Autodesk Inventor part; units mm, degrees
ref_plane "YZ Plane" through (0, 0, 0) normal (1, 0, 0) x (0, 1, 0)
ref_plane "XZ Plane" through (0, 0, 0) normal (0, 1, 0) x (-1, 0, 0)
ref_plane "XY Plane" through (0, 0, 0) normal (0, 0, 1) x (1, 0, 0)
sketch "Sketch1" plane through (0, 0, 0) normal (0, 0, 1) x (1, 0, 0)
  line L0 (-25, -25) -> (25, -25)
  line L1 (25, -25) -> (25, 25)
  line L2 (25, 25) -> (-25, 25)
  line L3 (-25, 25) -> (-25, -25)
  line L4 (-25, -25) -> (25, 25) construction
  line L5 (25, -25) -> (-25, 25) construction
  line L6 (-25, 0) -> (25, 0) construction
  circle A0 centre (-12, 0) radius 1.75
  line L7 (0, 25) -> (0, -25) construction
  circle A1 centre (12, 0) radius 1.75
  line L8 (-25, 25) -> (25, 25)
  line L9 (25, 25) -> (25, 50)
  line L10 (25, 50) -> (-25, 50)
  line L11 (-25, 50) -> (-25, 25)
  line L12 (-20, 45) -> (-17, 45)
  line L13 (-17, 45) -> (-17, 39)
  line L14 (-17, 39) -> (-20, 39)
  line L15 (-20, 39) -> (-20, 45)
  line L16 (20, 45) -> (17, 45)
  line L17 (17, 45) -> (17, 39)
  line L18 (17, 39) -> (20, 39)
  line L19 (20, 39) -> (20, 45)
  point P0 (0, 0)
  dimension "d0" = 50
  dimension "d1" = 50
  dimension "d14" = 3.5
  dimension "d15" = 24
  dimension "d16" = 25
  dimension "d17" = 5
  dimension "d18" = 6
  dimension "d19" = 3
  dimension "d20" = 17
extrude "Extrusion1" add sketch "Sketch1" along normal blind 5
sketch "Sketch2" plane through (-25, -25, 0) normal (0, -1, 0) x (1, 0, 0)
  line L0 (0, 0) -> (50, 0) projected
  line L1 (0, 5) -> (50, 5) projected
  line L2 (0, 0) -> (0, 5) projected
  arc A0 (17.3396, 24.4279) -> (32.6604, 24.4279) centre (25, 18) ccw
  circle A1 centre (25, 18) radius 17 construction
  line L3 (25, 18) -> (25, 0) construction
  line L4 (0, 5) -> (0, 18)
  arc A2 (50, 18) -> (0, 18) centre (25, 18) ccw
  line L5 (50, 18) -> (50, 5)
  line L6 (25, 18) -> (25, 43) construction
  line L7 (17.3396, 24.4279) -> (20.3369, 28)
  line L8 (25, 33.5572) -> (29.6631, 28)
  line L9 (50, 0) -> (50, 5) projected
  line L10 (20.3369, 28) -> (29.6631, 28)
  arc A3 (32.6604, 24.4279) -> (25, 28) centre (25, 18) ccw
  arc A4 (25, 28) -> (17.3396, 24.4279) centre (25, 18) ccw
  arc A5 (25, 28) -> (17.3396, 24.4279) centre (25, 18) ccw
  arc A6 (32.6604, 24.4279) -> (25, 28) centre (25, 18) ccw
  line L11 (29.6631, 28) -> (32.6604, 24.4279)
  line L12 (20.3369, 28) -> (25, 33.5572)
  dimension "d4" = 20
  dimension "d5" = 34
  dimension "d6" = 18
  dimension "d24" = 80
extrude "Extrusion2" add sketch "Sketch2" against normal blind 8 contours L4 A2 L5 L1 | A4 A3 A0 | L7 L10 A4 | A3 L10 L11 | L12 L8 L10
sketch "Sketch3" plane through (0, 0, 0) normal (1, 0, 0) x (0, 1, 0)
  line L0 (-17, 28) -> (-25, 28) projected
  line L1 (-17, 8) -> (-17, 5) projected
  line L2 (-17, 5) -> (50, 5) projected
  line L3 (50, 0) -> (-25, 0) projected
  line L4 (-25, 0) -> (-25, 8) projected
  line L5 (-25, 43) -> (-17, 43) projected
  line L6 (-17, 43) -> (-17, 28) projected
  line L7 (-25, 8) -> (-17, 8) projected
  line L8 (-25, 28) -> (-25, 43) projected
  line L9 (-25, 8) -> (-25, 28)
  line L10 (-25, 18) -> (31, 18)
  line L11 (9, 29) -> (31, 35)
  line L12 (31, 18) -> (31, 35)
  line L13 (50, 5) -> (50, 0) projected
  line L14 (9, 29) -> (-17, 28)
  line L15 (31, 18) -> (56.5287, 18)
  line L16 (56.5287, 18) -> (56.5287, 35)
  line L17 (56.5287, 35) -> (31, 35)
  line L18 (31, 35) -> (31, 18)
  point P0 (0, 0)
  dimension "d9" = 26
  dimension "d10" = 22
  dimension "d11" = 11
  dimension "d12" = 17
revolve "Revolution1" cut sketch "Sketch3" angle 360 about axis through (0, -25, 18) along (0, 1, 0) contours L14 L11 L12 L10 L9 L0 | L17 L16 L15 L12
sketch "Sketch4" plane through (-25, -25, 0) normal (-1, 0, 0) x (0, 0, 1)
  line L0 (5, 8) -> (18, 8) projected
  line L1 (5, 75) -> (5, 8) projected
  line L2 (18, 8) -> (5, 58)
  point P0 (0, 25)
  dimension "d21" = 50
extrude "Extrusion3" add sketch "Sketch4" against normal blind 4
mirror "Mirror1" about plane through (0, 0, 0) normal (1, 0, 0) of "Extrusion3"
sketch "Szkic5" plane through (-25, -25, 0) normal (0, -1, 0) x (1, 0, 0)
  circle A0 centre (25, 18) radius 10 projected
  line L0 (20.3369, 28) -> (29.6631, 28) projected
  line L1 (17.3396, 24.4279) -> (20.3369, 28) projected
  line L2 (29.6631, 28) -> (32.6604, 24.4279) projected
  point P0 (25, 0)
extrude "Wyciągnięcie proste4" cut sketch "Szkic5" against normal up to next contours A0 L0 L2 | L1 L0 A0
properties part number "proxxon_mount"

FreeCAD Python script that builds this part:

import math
import FreeCAD as App
import Part
import Sketcher
from FreeCAD import Vector
Q = App.Units.Quantity

doc = App.newDocument("Part")
params = doc.addObject("Spreadsheet::Sheet", "Params")
for row, (alias, value) in enumerate([
    ("sketch1_diameter", "3.5 mm"),
    ("sketch1_width", "50 mm"),
    ("sketch1_width2", "3 mm"),
    ("sketch1_height", "6 mm"),
    ("pad1_length", "5 mm"),
    ("sketch2_radius", "25 mm"),
    ("sketch2_height", "13 mm"),
    ("pad2_length", "8 mm"),
    ("sketch3_height", "17 mm"),
    ("sketch3_width", "8 mm"),
    ("sketch3_height2", "10 mm"),
    ("groove_angle", "360 deg"),
    ("sketch4_width", "50 mm"),
    ("sketch4_height", "13 mm"),
    ("pad3_length", "4 mm"),
    ("sketch5_radius", "10 mm"),
    ("pocket1_length", "8 mm"),
], start=1):
    params.set(f"A{row}", alias)
    params.set(f"B{row}", "=" + value)
    params.setAlias(f"B{row}", alias)

body = doc.addObject("PartDesign::Body", "Body")

# Sketch on XY plane
sketch1 = doc.addObject("Sketcher::SketchObject", "Sketch")
body.addObject(sketch1)
sketch1.AttachmentSupport = (doc.XY_Plane, [""])
sketch1.MapMode = "FlatFace"
sketch1.addGeometry([
    Part.LineSegment(Vector(-25, -25, 0), Vector(25, -25, 0)),  # 0
    Part.LineSegment(Vector(25, -25, 0), Vector(25, 50, 0)),  # 1
    Part.LineSegment(Vector(25, 50, 0), Vector(-25, 50, 0)),  # 2
    Part.LineSegment(Vector(-25, 50, 0), Vector(-25, -25, 0)),  # 3
    Part.Circle(Vector(-12, 0, 0), Vector(0, 0, 1), 1.8),  # 4
    Part.Circle(Vector(12, 0, 0), Vector(0, 0, 1), 1.8),  # 5
    Part.LineSegment(Vector(20, 45, 0), Vector(20, 39, 0)),  # 6
    Part.LineSegment(Vector(20, 39, 0), Vector(17, 39, 0)),  # 7
    Part.LineSegment(Vector(17, 39, 0), Vector(17, 45, 0)),  # 8
    Part.LineSegment(Vector(17, 45, 0), Vector(20, 45, 0)),  # 9
    Part.LineSegment(Vector(-20, 39, 0), Vector(-20, 45, 0)),  # 10
    Part.LineSegment(Vector(-20, 45, 0), Vector(-17, 45, 0)),  # 11
    Part.LineSegment(Vector(-17, 45, 0), Vector(-17, 39, 0)),  # 12
    Part.LineSegment(Vector(-17, 39, 0), Vector(-20, 39, 0)),  # 13
], False)
sketch1.addConstraint([
    Sketcher.Constraint("Coincident", 0, 2, 1, 1),
    Sketcher.Constraint("Coincident", 1, 2, 2, 1),
    Sketcher.Constraint("Coincident", 2, 2, 3, 1),
    Sketcher.Constraint("Coincident", 3, 2, 0, 1),
    Sketcher.Constraint("Coincident", 6, 2, 7, 1),
    Sketcher.Constraint("Coincident", 7, 2, 8, 1),
    Sketcher.Constraint("Coincident", 8, 2, 9, 1),
    Sketcher.Constraint("Coincident", 9, 2, 6, 1),
    Sketcher.Constraint("Coincident", 10, 2, 11, 1),
    Sketcher.Constraint("Coincident", 11, 2, 12, 1),
    Sketcher.Constraint("Coincident", 12, 2, 13, 1),
    Sketcher.Constraint("Coincident", 13, 2, 10, 1),
    Sketcher.Constraint("Horizontal", 0),
    Sketcher.Constraint("Vertical", 1),
    Sketcher.Constraint("Horizontal", 2),
    Sketcher.Constraint("Vertical", 3),
    Sketcher.Constraint("Vertical", 6),
    Sketcher.Constraint("Horizontal", 7),
    Sketcher.Constraint("Vertical", 8),
    Sketcher.Constraint("Horizontal", 9),
    Sketcher.Constraint("Vertical", 10),
    Sketcher.Constraint("Horizontal", 11),
    Sketcher.Constraint("Vertical", 12),
    Sketcher.Constraint("Horizontal", 13),
    Sketcher.Constraint("Equal", 4, 5),
    Sketcher.Constraint("Symmetric", 4, 3, 5, 3, -1, 1),
    Sketcher.Constraint("Symmetric", 9, 2, 10, 2, -2),
    Sketcher.Constraint("Symmetric", 7, 2, 12, 2, -2),
    Sketcher.Constraint("PointOnObject", 4, 3, -1),
    Sketcher.Constraint("Diameter", 4, Q("3.5 mm")),
    Sketcher.Constraint("DistanceX", 0, 1, 0, 2, Q("50 mm")),
    Sketcher.Constraint("DistanceX", 7, 2, 7, 1, Q("3 mm")),
    Sketcher.Constraint("DistanceY", 6, 2, 6, 1, Q("6 mm")),
    Sketcher.Constraint("DistanceX", -1, 1, 0, 2, Q("25 mm")),
    Sketcher.Constraint("DistanceY", 0, 2, -1, 1, Q("25 mm")),
    Sketcher.Constraint("DistanceY", -1, 1, 1, 2, Q("50 mm")),
    Sketcher.Constraint("DistanceX", -1, 1, 7, 2, Q("17 mm")),
    Sketcher.Constraint("DistanceX", 4, 3, 5, 3, Q("24 mm")),
    Sketcher.Constraint("DistanceY", 8, 2, 1, 2, Q("5 mm")),
])
sketch1.setExpression("Constraints[29]", "Params.sketch1_diameter")
sketch1.setExpression("Constraints[30]", "Params.sketch1_width")
sketch1.setExpression("Constraints[31]", "Params.sketch1_width2")
sketch1.setExpression("Constraints[32]", "Params.sketch1_height")
pad1 = doc.addObject("PartDesign::Pad", "Pad")
body.addObject(pad1)
pad1.Profile = sketch1
pad1.setExpression("Length", "Params.pad1_length")

# Sketch on XZ plane
sketch2 = doc.addObject("Sketcher::SketchObject", "Sketch001")
body.addObject(sketch2)
sketch2.AttachmentSupport = (doc.XZ_Plane, [""])
sketch2.MapMode = "FlatFace"
sketch2.AttachmentOffset = App.Placement(Vector(0, 0, 25), App.Rotation())
sketch2.addGeometry([
    Part.LineSegment(Vector(-25, 18, 0), Vector(-25, 5, 0)),
    Part.LineSegment(Vector(-25, 5, 0), Vector(25, 5, 0)),
    Part.LineSegment(Vector(25, 5, 0), Vector(25, 18, 0)),
    Part.ArcOfCircle(Part.Circle(Vector(0, 18, 0), Vector(0, 0, 1), 25), math.radians(0), math.radians(180)),
], False)
sketch2.addConstraint([
    Sketcher.Constraint("Coincident", 0, 2, 1, 1),
    Sketcher.Constraint("Coincident", 1, 2, 2, 1),
    Sketcher.Constraint("Tangent", 2, 2, 3, 1),
    Sketcher.Constraint("Tangent", 3, 2, 0, 1),
    Sketcher.Constraint("Vertical", 0),
    Sketcher.Constraint("Horizontal", 1),
    Sketcher.Constraint("Vertical", 2),
    Sketcher.Constraint("PointOnObject", 3, 3, -2),
    Sketcher.Constraint("DistanceY", -1, 1, 3, 3, Q("18 mm")),
    Sketcher.Constraint("Radius", 3, Q("25 mm")),
    Sketcher.Constraint("DistanceY", 0, 2, 0, 1, Q("13 mm")),
])
sketch2.setExpression("Constraints[9]", "Params.sketch2_radius")
sketch2.setExpression("Constraints[10]", "Params.sketch2_height")
pad2 = doc.addObject("PartDesign::Pad", "Pad001")
body.addObject(pad2)
pad2.Profile = sketch2
pad2.setExpression("Length", "Params.pad2_length")
pad2.Reversed = True

# Sketch on YZ plane
sketch3 = doc.addObject("Sketcher::SketchObject", "Sketch002")
body.addObject(sketch3)
sketch3.AttachmentSupport = (doc.YZ_Plane, [""])
sketch3.MapMode = "FlatFace"
sketch3.addGeometry([
    Part.LineSegment(Vector(9, 29, 0), Vector(-17, 28, 0)),  # 0
    Part.LineSegment(Vector(-17, 28, 0), Vector(-25, 28, 0)),  # 1
    Part.LineSegment(Vector(-25, 28, 0), Vector(-25, 18, 0)),  # 2
    Part.LineSegment(Vector(-25, 18, 0), Vector(57, 18, 0)),  # 3
    Part.LineSegment(Vector(57, 18, 0), Vector(57, 35, 0)),  # 4
    Part.LineSegment(Vector(57, 35, 0), Vector(31, 35, 0)),  # 5
    Part.LineSegment(Vector(31, 35, 0), Vector(9, 29, 0)),  # 6
], False)
sketch3.addGeometry(Part.LineSegment(Vector(-25, 18, 0), Vector(57, 18, 0)), True)  # axis
sketch3.addConstraint([
    Sketcher.Constraint("Coincident", 0, 2, 1, 1),
    Sketcher.Constraint("Coincident", 1, 2, 2, 1),
    Sketcher.Constraint("Coincident", 2, 2, 3, 1),
    Sketcher.Constraint("Coincident", 3, 2, 4, 1),
    Sketcher.Constraint("Coincident", 4, 2, 5, 1),
    Sketcher.Constraint("Coincident", 5, 2, 6, 1),
    Sketcher.Constraint("Coincident", 6, 2, 0, 1),
    Sketcher.Constraint("Horizontal", 1),
    Sketcher.Constraint("Vertical", 2),
    Sketcher.Constraint("Horizontal", 3),
    Sketcher.Constraint("Vertical", 4),
    Sketcher.Constraint("Horizontal", 5),
    Sketcher.Constraint("Horizontal", 7),
    Sketcher.Constraint("Coincident", 7, 1, 2, 2),
    Sketcher.Constraint("Vertical", 4, 2, 7, 2),
    Sketcher.Constraint("DistanceY", 4, 1, 4, 2, Q("17 mm")),
    Sketcher.Constraint("DistanceX", 0, 2, -1, 1, Q("17 mm")),
    Sketcher.Constraint("DistanceX", 6, 2, 5, 2, Q("22 mm")),
    Sketcher.Constraint("DistanceX", 0, 2, 6, 2, Q("26 mm")),
    Sketcher.Constraint("DistanceY", 2, 2, 6, 2, Q("11 mm")),
    Sketcher.Constraint("DistanceX", 1, 2, 1, 1, Q("8 mm")),
    Sketcher.Constraint("DistanceY", 2, 2, 2, 1, Q("10 mm")),
    Sketcher.Constraint("DistanceY", -1, 1, 0, 2, Q("28 mm")),
    Sketcher.Constraint("DistanceX", 3, 1, 3, 2, Q("81.5287 mm")),
])
sketch3.setExpression("Constraints[15]", "Params.sketch3_height")
sketch3.setExpression("Constraints[20]", "Params.sketch3_width")
sketch3.setExpression("Constraints[21]", "Params.sketch3_height2")
groove = doc.addObject("PartDesign::Groove", "Groove")
body.addObject(groove)
groove.Profile = sketch3
groove.ReferenceAxis = (sketch3, ["Axis0"])
groove.setExpression("Angle", "Params.groove_angle")

# Sketch on YZ plane
sketch4 = doc.addObject("Sketcher::SketchObject", "Sketch003")
body.addObject(sketch4)
sketch4.AttachmentSupport = (doc.YZ_Plane, [""])
sketch4.MapMode = "FlatFace"
sketch4.AttachmentOffset = App.Placement(Vector(0, 0, -25), App.Rotation())
sketch4.addGeometry([
    Part.LineSegment(Vector(33, 5, 0), Vector(-17, 5, 0)),
    Part.LineSegment(Vector(-17, 5, 0), Vector(-17, 18, 0)),
    Part.LineSegment(Vector(-17, 18, 0), Vector(33, 5, 0)),
], False)
sketch4.addConstraint([
    Sketcher.Constraint("Coincident", 0, 2, 1, 1),
    Sketcher.Constraint("Coincident", 1, 2, 2, 1),
    Sketcher.Constraint("Coincident", 2, 2, 0, 1),
    Sketcher.Constraint("Horizontal", 0),
    Sketcher.Constraint("Vertical", 1),
    Sketcher.Constraint("DistanceX", 0, 2, 0, 1, Q("50 mm")),
    Sketcher.Constraint("DistanceY", 1, 1, 1, 2, Q("13 mm")),
    Sketcher.Constraint("DistanceX", 0, 2, -1, 1, Q("17 mm")),
    Sketcher.Constraint("DistanceY", -1, 1, 0, 2, Q("5 mm")),
])
sketch4.setExpression("Constraints[5]", "Params.sketch4_width")
sketch4.setExpression("Constraints[6]", "Params.sketch4_height")
pad3 = doc.addObject("PartDesign::Pad", "Pad002")
body.addObject(pad3)
pad3.Profile = sketch4
pad3.setExpression("Length", "Params.pad3_length")
doc.recompute()

mirrored = doc.addObject("PartDesign::Mirrored", "Mirrored")
body.addObject(mirrored)
mirrored.Originals = [pad3]
mirrored.MirrorPlane = (doc.YZ_Plane, [""])
body.Tip = mirrored

# Sketch on XZ plane
sketch5 = doc.addObject("Sketcher::SketchObject", "Sketch004")
body.addObject(sketch5)
sketch5.AttachmentSupport = (doc.XZ_Plane, [""])
sketch5.MapMode = "FlatFace"
sketch5.AttachmentOffset = App.Placement(Vector(0, 0, 25), App.Rotation())
sketch5.addGeometry([
    Part.ArcOfCircle(Part.Circle(Vector(0, 18, 0), Vector(0, 0, 1), 10), math.radians(40), math.radians(90)),  # 0
    Part.LineSegment(Vector(7.7, 24.4, 0), Vector(4.7, 28, 0)),  # 1
    Part.LineSegment(Vector(4.7, 28, 0), Vector(0, 28, 0)),  # 2
    Part.LineSegment(Vector(-4.7, 28, 0), Vector(-7.7, 24.4, 0)),  # 3
    Part.ArcOfCircle(Part.Circle(Vector(0, 18, 0), Vector(0, 0, 1), 10), math.radians(90), math.radians(140)),  # 4
    Part.LineSegment(Vector(0, 28, 0), Vector(-4.7, 28, 0)),  # 5
], False)
sketch5.addConstraint([
    Sketcher.Constraint("Tangent", 0, 1, 1, 1),
    Sketcher.Constraint("Coincident", 1, 2, 2, 1),
    Sketcher.Constraint("Tangent", 2, 2, 0, 2),
    Sketcher.Constraint("Tangent", 3, 2, 4, 2),
    Sketcher.Constraint("Tangent", 4, 1, 5, 1),
    Sketcher.Constraint("Coincident", 5, 2, 3, 1),
    Sketcher.Constraint("Horizontal", 2),
    Sketcher.Constraint("Horizontal", 5),
    Sketcher.Constraint("Coincident", 4, 3, 0, 3),
    Sketcher.Constraint("Equal", 0, 4),
    Sketcher.Constraint("Symmetric", 0, 1, 3, 2, -2),
    Sketcher.Constraint("Radius", 0, Q("10 mm")),
    Sketcher.Constraint("Angle", 1, Q("129.9996 deg")),
    Sketcher.Constraint("DistanceY", -1, 1, 0, 3, Q("18 mm")),
])
sketch5.setExpression("Constraints[11]", "Params.sketch5_radius")
pocket1 = doc.addObject("PartDesign::Pocket", "Pocket")
body.addObject(pocket1)
pocket1.Profile = sketch5
pocket1.setExpression("Length", "Params.pocket1_length")

doc.recompute()
